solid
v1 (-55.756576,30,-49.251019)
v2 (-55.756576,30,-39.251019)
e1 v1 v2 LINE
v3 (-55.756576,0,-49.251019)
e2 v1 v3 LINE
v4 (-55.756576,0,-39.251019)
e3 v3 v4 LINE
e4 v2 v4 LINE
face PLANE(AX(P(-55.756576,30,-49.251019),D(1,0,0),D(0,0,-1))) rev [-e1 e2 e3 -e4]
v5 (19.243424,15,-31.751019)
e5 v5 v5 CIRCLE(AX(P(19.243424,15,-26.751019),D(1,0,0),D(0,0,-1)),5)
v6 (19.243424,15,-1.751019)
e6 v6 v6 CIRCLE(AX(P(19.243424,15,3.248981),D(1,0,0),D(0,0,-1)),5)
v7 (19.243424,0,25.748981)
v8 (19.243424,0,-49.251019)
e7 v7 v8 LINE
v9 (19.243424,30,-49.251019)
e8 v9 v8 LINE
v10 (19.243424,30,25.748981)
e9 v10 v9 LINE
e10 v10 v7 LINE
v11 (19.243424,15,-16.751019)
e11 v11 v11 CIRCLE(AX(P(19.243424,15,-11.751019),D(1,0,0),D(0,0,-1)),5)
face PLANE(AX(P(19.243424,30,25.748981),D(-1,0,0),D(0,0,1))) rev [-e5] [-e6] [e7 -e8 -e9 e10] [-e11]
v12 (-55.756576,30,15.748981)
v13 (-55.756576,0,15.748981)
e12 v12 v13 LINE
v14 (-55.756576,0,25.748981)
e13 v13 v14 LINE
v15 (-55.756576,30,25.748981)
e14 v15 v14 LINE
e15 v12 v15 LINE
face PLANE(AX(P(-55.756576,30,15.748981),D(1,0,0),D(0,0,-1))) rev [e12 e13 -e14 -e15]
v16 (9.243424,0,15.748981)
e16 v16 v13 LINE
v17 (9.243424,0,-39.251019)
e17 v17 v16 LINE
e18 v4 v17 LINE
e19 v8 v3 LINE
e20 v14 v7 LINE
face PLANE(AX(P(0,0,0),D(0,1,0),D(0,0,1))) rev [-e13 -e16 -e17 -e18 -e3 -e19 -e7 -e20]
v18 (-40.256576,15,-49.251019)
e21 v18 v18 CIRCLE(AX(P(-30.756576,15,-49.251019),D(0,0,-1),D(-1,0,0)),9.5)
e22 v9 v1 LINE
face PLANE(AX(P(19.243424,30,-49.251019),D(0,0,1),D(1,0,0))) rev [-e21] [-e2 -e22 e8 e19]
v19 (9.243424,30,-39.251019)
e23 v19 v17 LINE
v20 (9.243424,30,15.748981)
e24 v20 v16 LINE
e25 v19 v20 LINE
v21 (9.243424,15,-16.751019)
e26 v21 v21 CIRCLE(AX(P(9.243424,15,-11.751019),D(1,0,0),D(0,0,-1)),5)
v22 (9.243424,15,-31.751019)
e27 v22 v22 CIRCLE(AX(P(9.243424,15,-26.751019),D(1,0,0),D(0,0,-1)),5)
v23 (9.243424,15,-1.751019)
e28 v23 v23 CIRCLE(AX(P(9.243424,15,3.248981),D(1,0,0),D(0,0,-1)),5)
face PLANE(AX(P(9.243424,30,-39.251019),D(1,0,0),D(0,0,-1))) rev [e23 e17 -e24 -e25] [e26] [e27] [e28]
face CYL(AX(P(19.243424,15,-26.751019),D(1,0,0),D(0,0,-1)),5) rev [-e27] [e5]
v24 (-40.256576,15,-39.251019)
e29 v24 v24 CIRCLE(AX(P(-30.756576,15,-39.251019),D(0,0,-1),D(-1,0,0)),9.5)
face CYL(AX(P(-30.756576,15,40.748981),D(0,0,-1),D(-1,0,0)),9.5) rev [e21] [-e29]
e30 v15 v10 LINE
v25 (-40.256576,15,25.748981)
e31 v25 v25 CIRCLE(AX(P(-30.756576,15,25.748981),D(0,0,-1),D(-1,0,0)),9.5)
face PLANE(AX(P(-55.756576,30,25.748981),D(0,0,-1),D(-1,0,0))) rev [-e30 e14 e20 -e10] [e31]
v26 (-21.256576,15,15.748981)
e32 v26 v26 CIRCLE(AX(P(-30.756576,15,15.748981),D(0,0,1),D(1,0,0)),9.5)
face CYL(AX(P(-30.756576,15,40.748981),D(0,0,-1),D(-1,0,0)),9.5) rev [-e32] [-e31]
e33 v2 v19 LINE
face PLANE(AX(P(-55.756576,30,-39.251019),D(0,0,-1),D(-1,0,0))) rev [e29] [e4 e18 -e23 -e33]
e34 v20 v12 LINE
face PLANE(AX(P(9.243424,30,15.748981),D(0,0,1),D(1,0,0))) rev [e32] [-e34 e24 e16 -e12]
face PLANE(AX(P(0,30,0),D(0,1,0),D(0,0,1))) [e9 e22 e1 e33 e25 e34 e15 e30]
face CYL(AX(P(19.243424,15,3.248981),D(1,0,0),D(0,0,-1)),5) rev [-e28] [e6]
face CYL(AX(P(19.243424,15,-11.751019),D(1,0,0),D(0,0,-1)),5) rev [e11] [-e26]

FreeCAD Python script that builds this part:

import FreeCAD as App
import Part
import Sketcher
from FreeCAD import Vector
Q = App.Units.Quantity


def add_polygon(sketch, points):
    """Adds a closed chain of lines whose ends are joined by coincident constraints."""
    first, n = sketch.GeometryCount, len(points)
    for a, b in zip(points, points[1:] + points[:1]):
        sketch.addGeometry(Part.LineSegment(App.Vector(*a, 0), App.Vector(*b, 0)), False)
    for i in range(n):
        sketch.addConstraint(Sketcher.Constraint("Coincident", first + i, 2, first + (i + 1) % n, 1))

doc = App.newDocument("Part")
body = doc.addObject("PartDesign::Body", "Body")

sketch1 = body.newObject("Sketcher::SketchObject", "Sketch")
sketch1.AttachmentSupport = (doc.getObject("XZ_Plane"), [""])
sketch1.MapMode = "FlatFace"
add_polygon(sketch1, [(-56, 26), (19, 26), (19, -49), (-56, -49), (-56, -39), (9, -39), (9, 16), (-56, 16)])
sketch1.addConstraint([
    Sketcher.Constraint("Horizontal", 0),
    Sketcher.Constraint("Vertical", 1),
    Sketcher.Constraint("Horizontal", 2),
    Sketcher.Constraint("Vertical", 3),
    Sketcher.Constraint("Horizontal", 4),
    Sketcher.Constraint("Vertical", 5),
    Sketcher.Constraint("Horizontal", 6),
    Sketcher.Constraint("Vertical", 7),
    Sketcher.Constraint("Vertical", 3, 2, 6, 2),
    Sketcher.Constraint("Equal", 2, 1),
    Sketcher.Constraint("Equal", 3, 7),
    Sketcher.Constraint("DistanceX", 0, 1, 0, 2, Q("75 mm")),
    Sketcher.Constraint("DistanceX", 4, 1, 4, 2, Q("65 mm")),
    Sketcher.Constraint("DistanceY", 3, 1, 3, 2, Q("10 mm")),
    Sketcher.Constraint("DistanceY", -1, 1, 0, 2, Q("25.748981 mm")),
    Sketcher.Constraint("DistanceX", -1, 1, 0, 2, Q("19.243424 mm")),
])
pad1 = body.newObject("PartDesign::Pad", "Pad")
pad1.Profile = sketch1
pad1.Length = 30
pad1.Reversed = True

sketch2 = body.newObject("Sketcher::SketchObject", "Sketch001")
sketch2.AttachmentSupport = (doc.getObject("XY_Plane"), [""])
sketch2.MapMode = "FlatFace"
sketch2.AttachmentOffset = App.Placement(Vector(0, 0, -49.251019), App.Rotation())
sketch2.addGeometry(Part.Circle(Vector(-31, 15, 0), Vector(0, 0, 1), 10), False)
sketch2.addConstraint([
    Sketcher.Constraint("Diameter", 0, Q("19 mm")),
    Sketcher.Constraint("DistanceY", -1, 1, 0, 3, Q("15 mm")),
    Sketcher.Constraint("DistanceX", 0, 3, -1, 1, Q("30.756576 mm")),
])
pocket1 = body.newObject("PartDesign::Pocket", "Pocket")
pocket1.Profile = sketch2
pocket1.Length = 90
pocket1.Reversed = True

sketch3 = body.newObject("Sketcher::SketchObject", "Sketch002")
sketch3.AttachmentSupport = (doc.getObject("YZ_Plane"), [""])
sketch3.MapMode = "FlatFace"
sketch3.AttachmentOffset = App.Placement(Vector(0, 0, 19.243424), App.Rotation())
sketch3.addGeometry([
    Part.Circle(Vector(15, 3.2, 0), Vector(0, 0, 1), 4.5),
    Part.Circle(Vector(15, -11.8, 0), Vector(0, 0, 1), 4.5),
    Part.Circle(Vector(15, -26.8, 0), Vector(0, 0, 1), 4.5),
], False)
sketch3.addConstraint([
    Sketcher.Constraint("Equal", 0, 1),
    Sketcher.Constraint("Equal", 1, 2),
    Sketcher.Constraint("Vertical", 0, 3, 1, 3),
    Sketcher.Constraint("Vertical", 1, 3, 2, 3),
    Sketcher.Constraint("Diameter", 0, Q("9 mm")),
    Sketcher.Constraint("DistanceX", -1, 1, 0, 3, Q("15 mm")),
    Sketcher.Constraint("DistanceY", 1, 3, 0, 3, Q("15 mm")),
    Sketcher.Constraint("DistanceY", 2, 3, 1, 3, Q("15 mm")),
    Sketcher.Constraint("DistanceY", -1, 1, 0, 3, Q("3.248981 mm")),
])
doc.recompute()
hole = body.newObject("PartDesign::Hole", "Hole")
hole.Profile = sketch3
hole.ThreadType = "None"
hole.Diameter = 9
hole.DepthType = "Dimension"
hole.Depth = 23
hole.DrillPoint = "Angled"
hole.DrillPointAngle = 118
hole.HoleCutType = "Counterbore"
hole.HoleCutDiameter = 10
hole.HoleCutDepth = 20

doc.recompute()
